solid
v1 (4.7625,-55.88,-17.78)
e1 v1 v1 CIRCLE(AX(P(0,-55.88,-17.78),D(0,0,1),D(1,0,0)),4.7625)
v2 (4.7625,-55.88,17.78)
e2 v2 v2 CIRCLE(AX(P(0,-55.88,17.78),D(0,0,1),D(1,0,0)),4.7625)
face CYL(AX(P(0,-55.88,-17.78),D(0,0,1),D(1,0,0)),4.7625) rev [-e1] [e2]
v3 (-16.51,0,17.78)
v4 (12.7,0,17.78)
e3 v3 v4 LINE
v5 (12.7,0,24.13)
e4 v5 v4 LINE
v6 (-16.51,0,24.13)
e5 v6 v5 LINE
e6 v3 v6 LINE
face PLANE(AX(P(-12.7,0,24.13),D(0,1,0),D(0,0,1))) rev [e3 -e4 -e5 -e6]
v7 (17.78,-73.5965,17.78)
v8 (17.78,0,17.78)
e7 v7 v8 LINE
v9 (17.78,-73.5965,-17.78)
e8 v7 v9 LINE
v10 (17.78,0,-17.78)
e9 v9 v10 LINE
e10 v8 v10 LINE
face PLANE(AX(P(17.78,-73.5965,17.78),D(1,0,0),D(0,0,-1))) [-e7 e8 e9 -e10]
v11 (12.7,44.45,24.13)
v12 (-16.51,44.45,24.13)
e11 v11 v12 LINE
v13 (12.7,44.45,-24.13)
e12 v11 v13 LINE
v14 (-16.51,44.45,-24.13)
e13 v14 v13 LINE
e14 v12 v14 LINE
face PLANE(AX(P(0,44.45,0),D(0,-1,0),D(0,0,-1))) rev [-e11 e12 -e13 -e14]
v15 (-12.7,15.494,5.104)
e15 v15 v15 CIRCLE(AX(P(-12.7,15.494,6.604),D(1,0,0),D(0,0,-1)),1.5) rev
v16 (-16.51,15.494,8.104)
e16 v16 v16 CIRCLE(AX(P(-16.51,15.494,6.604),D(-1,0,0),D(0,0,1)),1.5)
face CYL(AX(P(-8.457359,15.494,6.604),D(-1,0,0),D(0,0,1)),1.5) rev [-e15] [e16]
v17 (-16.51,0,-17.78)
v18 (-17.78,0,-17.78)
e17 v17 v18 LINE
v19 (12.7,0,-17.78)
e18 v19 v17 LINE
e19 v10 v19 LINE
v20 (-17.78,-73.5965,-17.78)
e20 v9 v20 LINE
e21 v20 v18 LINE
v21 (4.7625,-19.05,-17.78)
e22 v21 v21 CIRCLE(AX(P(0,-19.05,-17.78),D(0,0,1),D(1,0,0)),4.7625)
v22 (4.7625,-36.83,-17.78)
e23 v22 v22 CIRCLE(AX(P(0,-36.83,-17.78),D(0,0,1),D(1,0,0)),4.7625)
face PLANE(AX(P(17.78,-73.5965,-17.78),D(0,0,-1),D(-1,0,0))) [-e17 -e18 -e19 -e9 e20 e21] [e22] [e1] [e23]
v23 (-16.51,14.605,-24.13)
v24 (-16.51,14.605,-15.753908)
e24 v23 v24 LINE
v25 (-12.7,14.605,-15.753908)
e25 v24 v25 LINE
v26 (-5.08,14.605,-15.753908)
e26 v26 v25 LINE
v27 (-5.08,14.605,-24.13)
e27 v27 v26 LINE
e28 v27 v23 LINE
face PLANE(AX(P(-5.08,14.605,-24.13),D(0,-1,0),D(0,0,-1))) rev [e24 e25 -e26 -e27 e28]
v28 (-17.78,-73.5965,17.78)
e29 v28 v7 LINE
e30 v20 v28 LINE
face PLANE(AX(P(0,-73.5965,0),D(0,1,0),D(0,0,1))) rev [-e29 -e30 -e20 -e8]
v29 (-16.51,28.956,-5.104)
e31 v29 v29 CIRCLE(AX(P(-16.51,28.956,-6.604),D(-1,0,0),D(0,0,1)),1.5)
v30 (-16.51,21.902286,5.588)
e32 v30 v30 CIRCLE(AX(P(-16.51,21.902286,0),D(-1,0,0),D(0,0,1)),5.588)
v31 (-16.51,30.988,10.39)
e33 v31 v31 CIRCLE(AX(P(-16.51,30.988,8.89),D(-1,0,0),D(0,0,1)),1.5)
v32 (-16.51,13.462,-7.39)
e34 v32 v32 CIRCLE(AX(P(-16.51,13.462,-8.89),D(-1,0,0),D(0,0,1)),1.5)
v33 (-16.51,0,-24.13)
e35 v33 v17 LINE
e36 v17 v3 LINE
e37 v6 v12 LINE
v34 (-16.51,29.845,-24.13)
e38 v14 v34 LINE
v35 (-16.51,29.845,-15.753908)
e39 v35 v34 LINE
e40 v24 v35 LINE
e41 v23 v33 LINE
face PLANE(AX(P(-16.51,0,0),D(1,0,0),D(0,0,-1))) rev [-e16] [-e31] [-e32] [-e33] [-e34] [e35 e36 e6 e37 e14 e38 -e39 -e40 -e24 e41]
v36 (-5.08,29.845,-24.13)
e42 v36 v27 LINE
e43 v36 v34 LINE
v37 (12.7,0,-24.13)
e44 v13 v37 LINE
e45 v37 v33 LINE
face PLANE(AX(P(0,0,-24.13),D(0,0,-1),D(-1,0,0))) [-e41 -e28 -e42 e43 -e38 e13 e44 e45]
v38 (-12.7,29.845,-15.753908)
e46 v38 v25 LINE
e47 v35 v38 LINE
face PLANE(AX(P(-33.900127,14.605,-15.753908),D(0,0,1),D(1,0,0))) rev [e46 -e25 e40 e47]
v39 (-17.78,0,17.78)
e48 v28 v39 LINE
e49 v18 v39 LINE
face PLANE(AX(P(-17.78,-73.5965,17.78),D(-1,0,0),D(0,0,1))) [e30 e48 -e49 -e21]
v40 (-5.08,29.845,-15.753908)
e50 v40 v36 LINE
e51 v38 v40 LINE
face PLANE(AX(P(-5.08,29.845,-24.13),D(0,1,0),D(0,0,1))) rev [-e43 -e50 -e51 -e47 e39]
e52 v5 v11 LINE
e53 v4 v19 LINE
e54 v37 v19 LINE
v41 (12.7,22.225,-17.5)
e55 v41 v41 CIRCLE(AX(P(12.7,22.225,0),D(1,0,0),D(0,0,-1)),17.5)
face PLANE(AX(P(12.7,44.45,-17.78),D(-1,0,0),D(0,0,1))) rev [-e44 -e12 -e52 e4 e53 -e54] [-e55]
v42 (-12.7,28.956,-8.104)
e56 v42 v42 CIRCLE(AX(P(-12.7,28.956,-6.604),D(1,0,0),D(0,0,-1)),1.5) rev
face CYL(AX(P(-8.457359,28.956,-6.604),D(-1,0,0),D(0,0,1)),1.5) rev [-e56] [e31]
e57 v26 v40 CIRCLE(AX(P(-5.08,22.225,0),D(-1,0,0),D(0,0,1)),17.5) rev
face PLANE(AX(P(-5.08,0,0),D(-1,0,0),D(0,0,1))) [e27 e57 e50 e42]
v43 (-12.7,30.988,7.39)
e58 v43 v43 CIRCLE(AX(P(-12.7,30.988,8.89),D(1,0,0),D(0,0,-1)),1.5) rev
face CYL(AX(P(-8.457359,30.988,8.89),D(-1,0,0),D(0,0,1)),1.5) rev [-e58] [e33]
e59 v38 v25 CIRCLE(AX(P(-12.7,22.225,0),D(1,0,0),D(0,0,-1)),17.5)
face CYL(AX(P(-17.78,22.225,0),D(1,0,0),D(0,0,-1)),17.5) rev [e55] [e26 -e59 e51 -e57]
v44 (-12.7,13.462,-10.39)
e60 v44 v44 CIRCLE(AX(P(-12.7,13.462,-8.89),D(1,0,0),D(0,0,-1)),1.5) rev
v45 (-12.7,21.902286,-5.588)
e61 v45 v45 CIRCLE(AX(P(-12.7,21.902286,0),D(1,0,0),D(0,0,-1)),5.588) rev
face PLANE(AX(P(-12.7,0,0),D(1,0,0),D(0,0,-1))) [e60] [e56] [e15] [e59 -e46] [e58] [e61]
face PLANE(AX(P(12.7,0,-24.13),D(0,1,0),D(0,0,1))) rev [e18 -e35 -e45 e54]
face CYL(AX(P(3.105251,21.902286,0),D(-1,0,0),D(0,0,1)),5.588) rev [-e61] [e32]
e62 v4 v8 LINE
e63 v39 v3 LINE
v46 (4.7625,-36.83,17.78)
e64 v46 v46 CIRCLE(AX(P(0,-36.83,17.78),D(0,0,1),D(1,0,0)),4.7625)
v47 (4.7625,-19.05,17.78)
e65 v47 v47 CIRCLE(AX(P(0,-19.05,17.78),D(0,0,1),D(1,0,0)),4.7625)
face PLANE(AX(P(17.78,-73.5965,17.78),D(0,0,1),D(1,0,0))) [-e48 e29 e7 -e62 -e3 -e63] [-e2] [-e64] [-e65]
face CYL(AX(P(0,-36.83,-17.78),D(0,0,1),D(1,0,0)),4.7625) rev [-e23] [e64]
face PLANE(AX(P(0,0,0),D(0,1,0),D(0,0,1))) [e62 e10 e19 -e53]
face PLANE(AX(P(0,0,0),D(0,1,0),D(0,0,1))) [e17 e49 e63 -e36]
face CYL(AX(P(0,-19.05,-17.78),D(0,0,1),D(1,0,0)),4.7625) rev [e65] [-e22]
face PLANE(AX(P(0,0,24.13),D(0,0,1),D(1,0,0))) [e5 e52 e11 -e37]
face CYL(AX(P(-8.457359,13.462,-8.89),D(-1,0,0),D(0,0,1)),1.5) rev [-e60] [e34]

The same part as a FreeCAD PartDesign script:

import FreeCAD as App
import Part
import Sketcher

V = App.Vector
Q = App.Units.Quantity

doc = App.newDocument("Part")
params = doc.addObject("Spreadsheet::Sheet", "Params")
for row, (alias, value) in enumerate([
    ("sketch1_width", "1.4 in"),
    ("pad1_length", "2.8975 in"),
    ("sketch2_diameter", "0.375 in"),
    ("sketch3_width", "1 in"),
    ("sketch3_height", "1.4 in"),
    ("pad2_length", "1.75 in"),
    ("sketch4_width", "1 in"),
    ("sketch4_height", "1.75 in"),
    ("pad3_length", "0.25 in"),
    ("sketch5_width", "1 in"),
    ("sketch5_height", "1.75 in"),
    ("pad4_length", "0.25 in"),
    ("sketch7_width", "0.6 in"),
    ("pocket3_length", "0.3 in"),
    ("sketch8_height", "1.9 in"),
    ("sketch8_width", "1.75 in"),
    ("pad5_length", "0.15 in"),
    ("sketch9_width", "0.6 in"),
    ("pocket4_length", "0.15 in"),
    ("sketch10_diameter", "0.44 in"),
    ("pocket5_length", "0.15 in"),
    ("pocket6_length", "0.15 in"),
], start=1):
    params.set(f"A{row}", alias)
    params.set(f"B{row}", "=" + value)
    params.setAlias(f"B{row}", alias)

body = doc.addObject("PartDesign::Body", "Body")

# Sketch on XZ plane
sketch1 = body.newObject("Sketcher::SketchObject", "Sketch")
sketch1.AttachmentSupport = (doc.getObject("XZ_Plane"), [""])
sketch1.MapMode = "FlatFace"
sketch1.addGeometry([
    Part.LineSegment(V(-17.78, -17.78, 0), V(-17.78, 17.78, 0)),
    Part.LineSegment(V(-17.78, 17.78, 0), V(17.78, 17.78, 0)),
    Part.LineSegment(V(17.78, 17.78, 0), V(17.78, -17.78, 0)),
    Part.LineSegment(V(17.78, -17.78, 0), V(-17.78, -17.78, 0)),
], False)
sketch1.addConstraint([
    Sketcher.Constraint("Coincident", 0, 2, 1, 1),
    Sketcher.Constraint("Coincident", 1, 2, 2, 1),
    Sketcher.Constraint("Coincident", 2, 2, 3, 1),
    Sketcher.Constraint("Coincident", 3, 2, 0, 1),
    Sketcher.Constraint("Vertical", 0),
    Sketcher.Constraint("Horizontal", 1),
    Sketcher.Constraint("Vertical", 2),
    Sketcher.Constraint("Horizontal", 3),
    Sketcher.Constraint("Symmetric", 0, 2, 2, 2, -1, 1),
    Sketcher.Constraint("Equal", 3, 0),
    Sketcher.Constraint("DistanceX", 1, 1, 1, 2, Q("1.4 in")),
])
sketch1.setExpression("Constraints[10]", "Params.sketch1_width")
pad1 = body.newObject("PartDesign::Pad", "Pad")
pad1.Profile = sketch1
pad1.setExpression("Length", "Params.pad1_length")

# Sketch on XY plane
sketch2 = body.newObject("Sketcher::SketchObject", "Sketch001")
sketch2.AttachmentSupport = (doc.getObject("XY_Plane"), [""])
sketch2.MapMode = "FlatFace"
sketch2.AttachmentOffset = App.Placement(V(0, 0, 0.7 * 25.4), App.Rotation())
sketch2.addGeometry([
    Part.Circle(V(0, -19.05, 0), V(0, 0, 1), 4.7625),
    Part.Circle(V(0, -36.83, 0), V(0, 0, 1), 4.7625),
    Part.Circle(V(0, -55.88, 0), V(0, 0, 1), 4.7625),
], False)
sketch2.addConstraint([
    Sketcher.Constraint("Equal", 0, 1),
    Sketcher.Constraint("Equal", 1, 2),
    Sketcher.Constraint("PointOnObject", 0, 3, -2),
    Sketcher.Constraint("PointOnObject", 1, 3, -2),
    Sketcher.Constraint("PointOnObject", 2, 3, -2),
    Sketcher.Constraint("Diameter", 0, Q("0.375 in")),
    Sketcher.Constraint("DistanceY", 2, 3, -1, 1, Q("2.2 in")),
    Sketcher.Constraint("DistanceY", 1, 3, 0, 3, Q("0.7 in")),
    Sketcher.Constraint("DistanceY", 0, 3, -1, 1, Q("0.75 in")),
])
sketch2.setExpression("Constraints[5]", "Params.sketch2_diameter")
pocket1 = body.newObject("PartDesign::Pocket", "Pocket")
pocket1.Profile = sketch2
pocket1.Type = "ThroughAll"

# Sketch on XZ plane
sketch3 = body.newObject("Sketcher::SketchObject", "Sketch002")
sketch3.AttachmentSupport = (doc.getObject("XZ_Plane"), [""])
sketch3.MapMode = "FlatFace"
sketch3.addGeometry([
    Part.LineSegment(V(-12.7, -17.78, 0), V(-12.7, 17.78, 0)),
    Part.LineSegment(V(-12.7, 17.78, 0), V(12.7, 17.78, 0)),
    Part.LineSegment(V(12.7, 17.78, 0), V(12.7, -17.78, 0)),
    Part.LineSegment(V(12.7, -17.78, 0), V(-12.7, -17.78, 0)),
], False)
sketch3.addConstraint([
    Sketcher.Constraint("Coincident", 0, 2, 1, 1),
    Sketcher.Constraint("Coincident", 1, 2, 2, 1),
    Sketcher.Constraint("Coincident", 2, 2, 3, 1),
    Sketcher.Constraint("Coincident", 3, 2, 0, 1),
    Sketcher.Constraint("Vertical", 0),
    Sketcher.Constraint("Horizontal", 1),
    Sketcher.Constraint("Vertical", 2),
    Sketcher.Constraint("Horizontal", 3),
    Sketcher.Constraint("Symmetric", 0, 2, 2, 2, -1, 1),
    Sketcher.Constraint("DistanceX", 1, 1, 1, 2, Q("1 in")),
    Sketcher.Constraint("DistanceY", 0, 1, 0, 2, Q("1.4 in")),
])
sketch3.setExpression("Constraints[9]", "Params.sketch3_width")
sketch3.setExpression("Constraints[10]", "Params.sketch3_height")
pad2 = body.newObject("PartDesign::Pad", "Pad001")
pad2.Profile = sketch3
pad2.setExpression("Length", "Params.pad2_length")
pad2.Reversed = True

# Sketch on XY plane
sketch4 = body.newObject("Sketcher::SketchObject", "Sketch003")
sketch4.AttachmentSupport = (doc.getObject("XY_Plane"), [""])
sketch4.MapMode = "FlatFace"
sketch4.AttachmentOffset = App.Placement(V(0, 0, 0.7 * 25.4), App.Rotation())
sketch4.addGeometry([
    Part.LineSegment(V(-12.7, 44.45, 0), V(-12.7, 0, 0)),
    Part.LineSegment(V(-12.7, 0, 0), V(12.7, 0, 0)),
    Part.LineSegment(V(12.7, 0, 0), V(12.7, 44.45, 0)),
    Part.LineSegment(V(12.7, 44.45, 0), V(-12.7, 44.45, 0)),
], False)
sketch4.addConstraint([
    Sketcher.Constraint("Coincident", 0, 2, 1, 1),
    Sketcher.Constraint("Coincident", 1, 2, 2, 1),
    Sketcher.Constraint("Coincident", 2, 2, 3, 1),
    Sketcher.Constraint("Coincident", 3, 2, 0, 1),
    Sketcher.Constraint("Vertical", 0),
    Sketcher.Constraint("Horizontal", 1),
    Sketcher.Constraint("Vertical", 2),
    Sketcher.Constraint("Horizontal", 3),
    Sketcher.Constraint("Symmetric", 0, 2, 1, 2, -1, 1),
    Sketcher.Constraint("DistanceX", 1, 1, 1, 2, Q("1 in")),
    Sketcher.Constraint("DistanceY", 0, 2, 0, 1, Q("1.75 in")),
])
sketch4.setExpression("Constraints[9]", "Params.sketch4_width")
sketch4.setExpression("Constraints[10]", "Params.sketch4_height")
pad3 = body.newObject("PartDesign::Pad", "Pad002")
pad3.Profile = sketch4
pad3.setExpression("Length", "Params.pad3_length")

# Sketch on XY plane
sketch5 = body.newObject("Sketcher::SketchObject", "Sketch004")
sketch5.AttachmentSupport = (doc.getObject("XY_Plane"), [""])
sketch5.MapMode = "FlatFace"
sketch5.AttachmentOffset = App.Placement(V(0, 0, -0.7 * 25.4), App.Rotation())
sketch5.addGeometry([
    Part.LineSegment(V(12.7, 44.45, 0), V(12.7, 0, 0)),
    Part.LineSegment(V(12.7, 0, 0), V(-12.7, 0, 0)),
    Part.LineSegment(V(-12.7, 0, 0), V(-12.7, 44.45, 0)),
    Part.LineSegment(V(-12.7, 44.45, 0), V(12.7, 44.45, 0)),
], False)
sketch5.addConstraint([
    Sketcher.Constraint("Coincident", 0, 2, 1, 1),
    Sketcher.Constraint("Coincident", 1, 2, 2, 1),
    Sketcher.Constraint("Coincident", 2, 2, 3, 1),
    Sketcher.Constraint("Coincident", 3, 2, 0, 1),
    Sketcher.Constraint("Vertical", 0),
    Sketcher.Constraint("Horizontal", 1),
    Sketcher.Constraint("Vertical", 2),
    Sketcher.Constraint("Horizontal", 3),
    Sketcher.Constraint("Symmetric", 0, 2, 1, 2, -1, 1),
    Sketcher.Constraint("DistanceX", 1, 2, 1, 1, Q("1 in")),
    Sketcher.Constraint("DistanceY", 0, 2, 0, 1, Q("1.75 in")),
])
sketch5.setExpression("Constraints[9]", "Params.sketch5_width")
sketch5.setExpression("Constraints[10]", "Params.sketch5_height")
pad4 = body.newObject("PartDesign::Pad", "Pad003")
pad4.Profile = sketch5
pad4.setExpression("Length", "Params.pad4_length")
pad4.Reversed = True

# Sketch on YZ plane
sketch6 = body.newObject("Sketcher::SketchObject", "Sketch005")
sketch6.AttachmentSupport = (doc.getObject("YZ_Plane"), [""])
sketch6.MapMode = "FlatFace"
sketch6.AttachmentOffset = App.Placement(V(0, 0, 0.5 * 25.4), App.Rotation())
sketch6.addGeometry(Part.Circle(V(22.225, 0, 0), V(0, 0, 1), 17.5), False)
sketch6.addConstraint([
    Sketcher.Constraint("PointOnObject", 0, 3, -1),
    Sketcher.Constraint("Diameter", 0, Q("35 mm")),
    Sketcher.Constraint("DistanceX", -1, 1, 0, 3, Q("0.875 in")),
])
pocket2 = body.newObject("PartDesign::Pocket", "Pocket001")
pocket2.Profile = sketch6
pocket2.Type = "ThroughAll"

# Sketch on YZ plane
sketch7 = body.newObject("Sketcher::SketchObject", "Sketch006")
sketch7.AttachmentSupport = (doc.getObject("YZ_Plane"), [""])
sketch7.MapMode = "FlatFace"
sketch7.AttachmentOffset = App.Placement(V(0, 0, -0.5 * 25.4), App.Rotation())
sketch7.addGeometry([
    Part.LineSegment(V(29.845, -24.13, 0), V(14.605, -24.13, 0)),
    Part.LineSegment(V(14.605, -24.13, 0), V(14.605, -12.94499, 0)),
    Part.LineSegment(V(14.605, -12.94499, 0), V(29.845, -12.94499, 0)),
    Part.LineSegment(V(29.845, -12.94499, 0), V(29.845, -24.13, 0)),
], False)
sketch7.addConstraint([
    Sketcher.Constraint("Coincident", 0, 2, 1, 1),
    Sketcher.Constraint("Coincident", 1, 2, 2, 1),
    Sketcher.Constraint("Coincident", 2, 2, 3, 1),
    Sketcher.Constraint("Coincident", 3, 2, 0, 1),
    Sketcher.Constraint("Horizontal", 0),
    Sketcher.Constraint("Vertical", 1),
    Sketcher.Constraint("Horizontal", 2),
    Sketcher.Constraint("Vertical", 3),
    Sketcher.Constraint("DistanceX", 0, 2, 0, 1, Q("0.6 in")),
    Sketcher.Constraint("DistanceY", 0, 2, -1, 1, Q("0.95 in")),
    Sketcher.Constraint("DistanceX", -1, 1, 0, 2, Q("0.575 in")),
    Sketcher.Constraint("DistanceY", 1, 1, 1, 2, Q("11.18501 mm")),
])
sketch7.setExpression("Constraints[8]", "Params.sketch7_width")
pocket3 = body.newObject("PartDesign::Pocket", "Pocket002")
pocket3.Profile = sketch7
pocket3.setExpression("Length", "Params.pocket3_length")
pocket3.Reversed = True

# Sketch on YZ plane
sketch8 = body.newObject("Sketcher::SketchObject", "Sketch007")
sketch8.AttachmentSupport = (doc.getObject("YZ_Plane"), [""])
sketch8.MapMode = "FlatFace"
sketch8.AttachmentOffset = App.Placement(V(0, 0, -0.5 * 25.4), App.Rotation())
sketch8.addGeometry([
    Part.LineSegment(V(44.45, -24.13, 0), V(0, -24.13, 0)),
    Part.LineSegment(V(0, -24.13, 0), V(0, 24.13, 0)),
    Part.LineSegment(V(0, 24.13, 0), V(44.45, 24.13, 0)),
    Part.LineSegment(V(44.45, 24.13, 0), V(44.45, -24.13, 0)),
], False)
sketch8.addConstraint([
    Sketcher.Constraint("Coincident", 0, 2, 1, 1),
    Sketcher.Constraint("Coincident", 1, 2, 2, 1),
    Sketcher.Constraint("Coincident", 2, 2, 3, 1),
    Sketcher.Constraint("Coincident", 3, 2, 0, 1),
    Sketcher.Constraint("Horizontal", 0),
    Sketcher.Constraint("Vertical", 1),
    Sketcher.Constraint("Horizontal", 2),
    Sketcher.Constraint("Vertical", 3),
    Sketcher.Constraint("Symmetric", 0, 2, 1, 2, -1, 1),
    Sketcher.Constraint("DistanceY", 1, 1, 1, 2, Q("1.9 in")),
    Sketcher.Constraint("DistanceX", 0, 2, 0, 1, Q("1.75 in")),
])
sketch8.setExpression("Constraints[9]", "Params.sketch8_height")
sketch8.setExpression("Constraints[10]", "Params.sketch8_width")
pad5 = body.newObject("PartDesign::Pad", "Pad004")
pad5.Profile = sketch8
pad5.setExpression("Length", "Params.pad5_length")
pad5.Reversed = True

# Sketch on YZ plane
sketch9 = body.newObject("Sketcher::SketchObject", "Sketch008")
sketch9.AttachmentSupport = (doc.getObject("YZ_Plane"), [""])
sketch9.MapMode = "FlatFace"
sketch9.AttachmentOffset = App.Placement(V(0, 0, -0.5 * 25.4), App.Rotation())
sketch9.addGeometry([
    Part.LineSegment(V(29.845, -15.753908, 0), V(14.605, -15.753908, 0)),
    Part.LineSegment(V(14.605, -15.753908, 0), V(14.605, -24.13, 0)),
    Part.LineSegment(V(14.605, -24.13, 0), V(29.845, -24.13, 0)),
    Part.LineSegment(V(29.845, -24.13, 0), V(29.845, -15.753908, 0)),
], False)
sketch9.addConstraint([
    Sketcher.Constraint("Coincident", 0, 2, 1, 1),
    Sketcher.Constraint("Coincident", 1, 2, 2, 1),
    Sketcher.Constraint("Coincident", 2, 2, 3, 1),
    Sketcher.Constraint("Coincident", 3, 2, 0, 1),
    Sketcher.Constraint("Horizontal", 0),
    Sketcher.Constraint("Vertical", 1),
    Sketcher.Constraint("Horizontal", 2),
    Sketcher.Constraint("Vertical", 3),
    Sketcher.Constraint("DistanceX", 0, 2, 0, 1, Q("0.6 in")),
    Sketcher.Constraint("DistanceY", 1, 2, -1, 1, Q("0.95 in")),
    Sketcher.Constraint("DistanceX", -1, 1, 0, 2, Q("0.575 in")),
    Sketcher.Constraint("DistanceY", 1, 2, 1, 1, Q("8.376092 mm")),
])
sketch9.setExpression("Constraints[8]", "Params.sketch9_width")
pocket4 = body.newObject("PartDesign::Pocket", "Pocket003")
pocket4.Profile = sketch9
pocket4.setExpression("Length", "Params.pocket4_length")

# Sketch on YZ plane
sketch10 = body.newObject("Sketcher::SketchObject", "Sketch009")
sketch10.AttachmentSupport = (doc.getObject("YZ_Plane"), [""])
sketch10.MapMode = "FlatFace"
sketch10.AttachmentOffset = App.Placement(V(0, 0, -0.65 * 25.4), App.Rotation())
sketch10.addGeometry(Part.Circle(V(21.902286, 0, 0), V(0, 0, 1), 5.588), False)
sketch10.addConstraint([
    Sketcher.Constraint("PointOnObject", 0, 3, -1),
    Sketcher.Constraint("Diameter", 0, Q("0.44 in")),
    Sketcher.Constraint("DistanceX", -1, 1, 0, 3, Q("21.902286 mm")),
])
sketch10.setExpression("Constraints[1]", "Params.sketch10_diameter")
pocket5 = body.newObject("PartDesign::Pocket", "Pocket004")
pocket5.Profile = sketch10
pocket5.setExpression("Length", "Params.pocket5_length")
pocket5.Reversed = True

# Sketch on YZ plane
sketch11 = body.newObject("Sketcher::SketchObject", "Sketch010")
sketch11.AttachmentSupport = (doc.getObject("YZ_Plane"), [""])
sketch11.MapMode = "FlatFace"
sketch11.AttachmentOffset = App.Placement(V(0, 0, -0.65 * 25.4), App.Rotation())
sketch11.addGeometry([
    Part.Circle(V(28.956, -6.604, 0), V(0, 0, 1), 1.5),
    Part.Circle(V(13.462, -8.89, 0), V(0, 0, 1), 1.5),
    Part.Circle(V(30.988, 8.89, 0), V(0, 0, 1), 1.5),
    Part.Circle(V(15.494, 6.604, 0), V(0, 0, 1), 1.5),
], False)
sketch11.addConstraint([
    Sketcher.Constraint("Equal", 0, 1),
    Sketcher.Constraint("Equal", 1, 2),
    Sketcher.Constraint("Equal", 2, 3),
    Sketcher.Constraint("DistanceY", 1, 3, 2, 3, Q("0.7 in")),
    Sketcher.Constraint("Diameter", 0, Q("3 mm")),
    Sketcher.Constraint("DistanceX", -1, 1, 0, 3, Q("1.14 in")),
    Sketcher.Constraint("DistanceY", 0, 3, -1, 1, Q("0.26 in")),
    Sketcher.Constraint("DistanceX", -1, 1, 1, 3, Q("0.53 in")),
    Sketcher.Constraint("DistanceY", 1, 3, -1, 1, Q("0.35 in")),
    Sketcher.Constraint("DistanceX", -1, 1, 2, 3, Q("1.22 in")),
    Sketcher.Constraint("DistanceX", -1, 1, 3, 3, Q("0.61 in")),
    Sketcher.Constraint("DistanceY", -1, 1, 3, 3, Q("0.26 in")),
])
pocket6 = body.newObject("PartDesign::Pocket", "Pocket005")
pocket6.Profile = sketch11
pocket6.setExpression("Length", "Params.pocket6_length")
pocket6.Reversed = True

doc.recompute()
